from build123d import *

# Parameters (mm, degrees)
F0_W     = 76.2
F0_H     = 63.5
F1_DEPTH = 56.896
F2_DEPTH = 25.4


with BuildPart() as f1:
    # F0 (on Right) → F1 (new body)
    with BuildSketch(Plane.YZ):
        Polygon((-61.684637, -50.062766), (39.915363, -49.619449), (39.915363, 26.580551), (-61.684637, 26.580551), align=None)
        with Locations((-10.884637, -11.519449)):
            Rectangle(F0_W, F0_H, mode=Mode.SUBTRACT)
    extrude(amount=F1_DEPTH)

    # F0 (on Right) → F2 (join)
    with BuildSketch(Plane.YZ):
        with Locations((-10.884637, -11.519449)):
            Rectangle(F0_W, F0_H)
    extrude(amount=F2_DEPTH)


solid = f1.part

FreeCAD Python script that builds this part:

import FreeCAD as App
import Part
import Sketcher

V = App.Vector
Q = App.Units.Quantity


def add_polygon(sketch, points):
    """Adds a closed chain of lines whose ends are joined by coincident constraints."""
    first, n = sketch.GeometryCount, len(points)
    for a, b in zip(points, points[1:] + points[:1]):
        sketch.addGeometry(Part.LineSegment(App.Vector(*a, 0), App.Vector(*b, 0)), False)
    for i in range(n):
        sketch.addConstraint(Sketcher.Constraint("Coincident", first + i, 2, first + (i + 1) % n, 1))

doc = App.newDocument("Part")
body = doc.addObject("PartDesign::Body", "Body")

# Sketch on YZ plane
sketch1 = body.newObject("Sketcher::SketchObject", "Sketch")
sketch1.AttachmentSupport = (doc.getObject("YZ_Plane"), [""])
sketch1.MapMode = "FlatFace"
add_polygon(sketch1, [(-61.684637, -50.062766), (39.915363, -49.619449), (39.915363, 26.580551), (-61.684637, 26.580551)])  # lines 0-3
add_polygon(sketch1, [(27.215363, -43.269449), (-48.984637, -43.269449), (-48.984637, 20.230551), (27.215363, 20.230551)])  # lines 4-7
sketch1.addConstraint(Sketcher.Constraint("Vertical", 1))
sketch1.addConstraint(Sketcher.Constraint("Horizontal", 2))
sketch1.addConstraint(Sketcher.Constraint("Vertical", 3))
sketch1.addConstraint(Sketcher.Constraint("Horizontal", 4))
sketch1.addConstraint(Sketcher.Constraint("Vertical", 5))
sketch1.addConstraint(Sketcher.Constraint("Horizontal", 6))
sketch1.addConstraint(Sketcher.Constraint("Vertical", 7))
sketch1.addConstraint(Sketcher.Constraint("Equal", 6, 1))
sketch1.addConstraint(Sketcher.Constraint("DistanceX", 2, 2, 2, 1, Q("4 in")))
sketch1.addConstraint(Sketcher.Constraint("DistanceX", 4, 2, 4, 1, Q("3 in")))
sketch1.addConstraint(Sketcher.Constraint("DistanceY", 5, 1, 5, 2, Q("2.5 in")))
sketch1.addConstraint(Sketcher.Constraint("DistanceX", 3, 2, 4, 2, Q("0.5 in")))
sketch1.addConstraint(Sketcher.Constraint("Angle", 0, Q("0.25 deg")))
sketch1.addConstraint(Sketcher.Constraint("DistanceY", 4, 2, 2, 2, Q("2.75 in")))
sketch1.addConstraint(Sketcher.Constraint("DistanceY", 0, 2, -1, 1, 49.619449))
sketch1.addConstraint(Sketcher.Constraint("DistanceX", -1, 1, 0, 2, 39.915363))
pad1 = body.newObject("PartDesign::Pad", "Pad")
pad1.Profile = sketch1
pad1.Length = Q("2.24 in")

# Sketch on YZ plane
sketch2 = body.newObject("Sketcher::SketchObject", "Sketch001")
sketch2.AttachmentSupport = (doc.getObject("YZ_Plane"), [""])
sketch2.MapMode = "FlatFace"
add_polygon(sketch2, [(-48.984637, 20.230551), (-48.984637, -43.269449), (27.215363, -43.269449), (27.215363, 20.230551)])  # lines 0-3
sketch2.addConstraint(Sketcher.Constraint("Vertical", 0))
sketch2.addConstraint(Sketcher.Constraint("Horizontal", 1))
sketch2.addConstraint(Sketcher.Constraint("Vertical", 2))
sketch2.addConstraint(Sketcher.Constraint("Horizontal", 3))
sketch2.addConstraint(Sketcher.Constraint("DistanceX", 1, 1, 1, 2, Q("3 in")))
sketch2.addConstraint(Sketcher.Constraint("DistanceY", 0, 2, 0, 1, Q("2.5 in")))
sketch2.addConstraint(Sketcher.Constraint("DistanceY", 0, 2, -1, 1, 43.269449))
sketch2.addConstraint(Sketcher.Constraint("DistanceX", 0, 2, -1, 1, 48.984637))
pad2 = body.newObject("PartDesign::Pad", "Pad001")
pad2.Profile = sketch2
pad2.Length = Q("1 in")

doc.recompute()
